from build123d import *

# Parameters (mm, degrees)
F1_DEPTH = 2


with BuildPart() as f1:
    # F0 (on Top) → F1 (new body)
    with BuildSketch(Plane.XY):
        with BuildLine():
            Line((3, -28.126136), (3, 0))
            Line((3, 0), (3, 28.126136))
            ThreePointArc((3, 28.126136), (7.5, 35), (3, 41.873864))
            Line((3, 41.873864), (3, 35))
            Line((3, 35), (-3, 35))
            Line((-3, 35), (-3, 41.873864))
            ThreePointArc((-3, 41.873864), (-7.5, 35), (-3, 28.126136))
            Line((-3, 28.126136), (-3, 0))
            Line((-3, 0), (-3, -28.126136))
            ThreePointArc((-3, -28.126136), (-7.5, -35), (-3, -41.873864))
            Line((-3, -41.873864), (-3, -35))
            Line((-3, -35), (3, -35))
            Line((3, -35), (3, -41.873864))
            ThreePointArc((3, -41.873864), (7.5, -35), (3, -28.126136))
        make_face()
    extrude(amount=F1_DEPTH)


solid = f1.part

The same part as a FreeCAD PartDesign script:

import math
import FreeCAD as App
import Part
import Sketcher

doc = App.newDocument("Part")
body = doc.addObject("PartDesign::Body", "Body")

# Sketch on XY plane
sketch1 = body.newObject("Sketcher::SketchObject", "Sketch")
sketch1.AttachmentSupport = (doc.getObject("XY_Plane"), [""])
sketch1.MapMode = "FlatFace"
sketch1.addGeometry([
    Part.LineSegment(App.Vector(3, -28.126136, 0), App.Vector(3, 28.126136, 0)),  # 0
    Part.ArcOfCircle(Part.Circle(App.Vector(-0.000001, 35, 0), App.Vector(0, 0, 1), 7.500001), math.radians(-66.421818), math.radians(66.421818)),  # 1
    Part.LineSegment(App.Vector(3, 41.873864, 0), App.Vector(3, 35, 0)),  # 2
    Part.LineSegment(App.Vector(3, 35, 0), App.Vector(-3, 35, 0)),  # 3
    Part.LineSegment(App.Vector(-3, 35, 0), App.Vector(-3, 41.873864, 0)),  # 4
    Part.ArcOfCircle(Part.Circle(App.Vector(0.000001, 35, 0), App.Vector(0, 0, 1), 7.500001), math.radians(113.578182), math.radians(246.421818)),  # 5
    Part.LineSegment(App.Vector(-3, 28.126136, 0), App.Vector(-3, -28.126136, 0)),  # 6
    Part.ArcOfCircle(Part.Circle(App.Vector(0.000001, -35, 0), App.Vector(0, 0, 1), 7.500001), math.radians(113.578182), math.radians(246.421818)),  # 7
    Part.LineSegment(App.Vector(-3, -41.873864, 0), App.Vector(-3, -35, 0)),  # 8
    Part.LineSegment(App.Vector(-3, -35, 0), App.Vector(3, -35, 0)),  # 9
    Part.LineSegment(App.Vector(3, -35, 0), App.Vector(3, -41.873864, 0)),  # 10
    Part.ArcOfCircle(Part.Circle(App.Vector(-0.000001, -35, 0), App.Vector(0, 0, 1), 7.500001), math.radians(-66.421818), math.radians(66.421818)),  # 11
], False)
sketch1.addConstraint([
    Sketcher.Constraint("Coincident", 0, 2, 1, 1),
    Sketcher.Constraint("Coincident", 1, 2, 2, 1),
    Sketcher.Constraint("Coincident", 2, 2, 3, 1),
    Sketcher.Constraint("Coincident", 3, 2, 4, 1),
    Sketcher.Constraint("Coincident", 4, 2, 5, 1),
    Sketcher.Constraint("Coincident", 5, 2, 6, 1),
    Sketcher.Constraint("Coincident", 6, 2, 7, 1),
    Sketcher.Constraint("Coincident", 7, 2, 8, 1),
    Sketcher.Constraint("Coincident", 8, 2, 9, 1),
    Sketcher.Constraint("Coincident", 9, 2, 10, 1),
    Sketcher.Constraint("Coincident", 10, 2, 11, 1),
    Sketcher.Constraint("Coincident", 11, 2, 0, 1),
    Sketcher.Constraint("Vertical", 0),
    Sketcher.Constraint("Vertical", 2),
    Sketcher.Constraint("Horizontal", 3),
    Sketcher.Constraint("Vertical", 4),
    Sketcher.Constraint("Vertical", 6),
    Sketcher.Constraint("Vertical", 8),
    Sketcher.Constraint("Horizontal", 9),
    Sketcher.Constraint("Vertical", 10),
    Sketcher.Constraint("Coincident", 5, 3, 1, 3),
    Sketcher.Constraint("Coincident", 11, 3, 7, 3),
    Sketcher.Constraint("Equal", 1, 5),
    Sketcher.Constraint("Equal", 5, 7),
    Sketcher.Constraint("Equal", 7, 11),
    Sketcher.Constraint("Symmetric", 1, 3, 7, 3, -1, 1),
    Sketcher.Constraint("Symmetric", 2, 2, 8, 2, -1, 1),
    Sketcher.Constraint("Symmetric", 1, 2, 4, 2, -2),
    Sketcher.Constraint("Horizontal", 5, 3, 2, 2),
    Sketcher.Constraint("Horizontal", 0, 2, 5, 2),
    Sketcher.Constraint("Horizontal", 7, 2, 10, 2),
    Sketcher.Constraint("Vertical", 0, 2, 1, 2),
    Sketcher.Constraint("Radius", 1, 7.500001),
    Sketcher.Constraint("DistanceX", 3, 2, 3, 1, 6.0),
    Sketcher.Constraint("DistanceY", -1, 1, 1, 3, 35.0),
])
pad1 = body.newObject("PartDesign::Pad", "Pad")
pad1.Profile = sketch1
pad1.Length = 2

doc.recompute()
